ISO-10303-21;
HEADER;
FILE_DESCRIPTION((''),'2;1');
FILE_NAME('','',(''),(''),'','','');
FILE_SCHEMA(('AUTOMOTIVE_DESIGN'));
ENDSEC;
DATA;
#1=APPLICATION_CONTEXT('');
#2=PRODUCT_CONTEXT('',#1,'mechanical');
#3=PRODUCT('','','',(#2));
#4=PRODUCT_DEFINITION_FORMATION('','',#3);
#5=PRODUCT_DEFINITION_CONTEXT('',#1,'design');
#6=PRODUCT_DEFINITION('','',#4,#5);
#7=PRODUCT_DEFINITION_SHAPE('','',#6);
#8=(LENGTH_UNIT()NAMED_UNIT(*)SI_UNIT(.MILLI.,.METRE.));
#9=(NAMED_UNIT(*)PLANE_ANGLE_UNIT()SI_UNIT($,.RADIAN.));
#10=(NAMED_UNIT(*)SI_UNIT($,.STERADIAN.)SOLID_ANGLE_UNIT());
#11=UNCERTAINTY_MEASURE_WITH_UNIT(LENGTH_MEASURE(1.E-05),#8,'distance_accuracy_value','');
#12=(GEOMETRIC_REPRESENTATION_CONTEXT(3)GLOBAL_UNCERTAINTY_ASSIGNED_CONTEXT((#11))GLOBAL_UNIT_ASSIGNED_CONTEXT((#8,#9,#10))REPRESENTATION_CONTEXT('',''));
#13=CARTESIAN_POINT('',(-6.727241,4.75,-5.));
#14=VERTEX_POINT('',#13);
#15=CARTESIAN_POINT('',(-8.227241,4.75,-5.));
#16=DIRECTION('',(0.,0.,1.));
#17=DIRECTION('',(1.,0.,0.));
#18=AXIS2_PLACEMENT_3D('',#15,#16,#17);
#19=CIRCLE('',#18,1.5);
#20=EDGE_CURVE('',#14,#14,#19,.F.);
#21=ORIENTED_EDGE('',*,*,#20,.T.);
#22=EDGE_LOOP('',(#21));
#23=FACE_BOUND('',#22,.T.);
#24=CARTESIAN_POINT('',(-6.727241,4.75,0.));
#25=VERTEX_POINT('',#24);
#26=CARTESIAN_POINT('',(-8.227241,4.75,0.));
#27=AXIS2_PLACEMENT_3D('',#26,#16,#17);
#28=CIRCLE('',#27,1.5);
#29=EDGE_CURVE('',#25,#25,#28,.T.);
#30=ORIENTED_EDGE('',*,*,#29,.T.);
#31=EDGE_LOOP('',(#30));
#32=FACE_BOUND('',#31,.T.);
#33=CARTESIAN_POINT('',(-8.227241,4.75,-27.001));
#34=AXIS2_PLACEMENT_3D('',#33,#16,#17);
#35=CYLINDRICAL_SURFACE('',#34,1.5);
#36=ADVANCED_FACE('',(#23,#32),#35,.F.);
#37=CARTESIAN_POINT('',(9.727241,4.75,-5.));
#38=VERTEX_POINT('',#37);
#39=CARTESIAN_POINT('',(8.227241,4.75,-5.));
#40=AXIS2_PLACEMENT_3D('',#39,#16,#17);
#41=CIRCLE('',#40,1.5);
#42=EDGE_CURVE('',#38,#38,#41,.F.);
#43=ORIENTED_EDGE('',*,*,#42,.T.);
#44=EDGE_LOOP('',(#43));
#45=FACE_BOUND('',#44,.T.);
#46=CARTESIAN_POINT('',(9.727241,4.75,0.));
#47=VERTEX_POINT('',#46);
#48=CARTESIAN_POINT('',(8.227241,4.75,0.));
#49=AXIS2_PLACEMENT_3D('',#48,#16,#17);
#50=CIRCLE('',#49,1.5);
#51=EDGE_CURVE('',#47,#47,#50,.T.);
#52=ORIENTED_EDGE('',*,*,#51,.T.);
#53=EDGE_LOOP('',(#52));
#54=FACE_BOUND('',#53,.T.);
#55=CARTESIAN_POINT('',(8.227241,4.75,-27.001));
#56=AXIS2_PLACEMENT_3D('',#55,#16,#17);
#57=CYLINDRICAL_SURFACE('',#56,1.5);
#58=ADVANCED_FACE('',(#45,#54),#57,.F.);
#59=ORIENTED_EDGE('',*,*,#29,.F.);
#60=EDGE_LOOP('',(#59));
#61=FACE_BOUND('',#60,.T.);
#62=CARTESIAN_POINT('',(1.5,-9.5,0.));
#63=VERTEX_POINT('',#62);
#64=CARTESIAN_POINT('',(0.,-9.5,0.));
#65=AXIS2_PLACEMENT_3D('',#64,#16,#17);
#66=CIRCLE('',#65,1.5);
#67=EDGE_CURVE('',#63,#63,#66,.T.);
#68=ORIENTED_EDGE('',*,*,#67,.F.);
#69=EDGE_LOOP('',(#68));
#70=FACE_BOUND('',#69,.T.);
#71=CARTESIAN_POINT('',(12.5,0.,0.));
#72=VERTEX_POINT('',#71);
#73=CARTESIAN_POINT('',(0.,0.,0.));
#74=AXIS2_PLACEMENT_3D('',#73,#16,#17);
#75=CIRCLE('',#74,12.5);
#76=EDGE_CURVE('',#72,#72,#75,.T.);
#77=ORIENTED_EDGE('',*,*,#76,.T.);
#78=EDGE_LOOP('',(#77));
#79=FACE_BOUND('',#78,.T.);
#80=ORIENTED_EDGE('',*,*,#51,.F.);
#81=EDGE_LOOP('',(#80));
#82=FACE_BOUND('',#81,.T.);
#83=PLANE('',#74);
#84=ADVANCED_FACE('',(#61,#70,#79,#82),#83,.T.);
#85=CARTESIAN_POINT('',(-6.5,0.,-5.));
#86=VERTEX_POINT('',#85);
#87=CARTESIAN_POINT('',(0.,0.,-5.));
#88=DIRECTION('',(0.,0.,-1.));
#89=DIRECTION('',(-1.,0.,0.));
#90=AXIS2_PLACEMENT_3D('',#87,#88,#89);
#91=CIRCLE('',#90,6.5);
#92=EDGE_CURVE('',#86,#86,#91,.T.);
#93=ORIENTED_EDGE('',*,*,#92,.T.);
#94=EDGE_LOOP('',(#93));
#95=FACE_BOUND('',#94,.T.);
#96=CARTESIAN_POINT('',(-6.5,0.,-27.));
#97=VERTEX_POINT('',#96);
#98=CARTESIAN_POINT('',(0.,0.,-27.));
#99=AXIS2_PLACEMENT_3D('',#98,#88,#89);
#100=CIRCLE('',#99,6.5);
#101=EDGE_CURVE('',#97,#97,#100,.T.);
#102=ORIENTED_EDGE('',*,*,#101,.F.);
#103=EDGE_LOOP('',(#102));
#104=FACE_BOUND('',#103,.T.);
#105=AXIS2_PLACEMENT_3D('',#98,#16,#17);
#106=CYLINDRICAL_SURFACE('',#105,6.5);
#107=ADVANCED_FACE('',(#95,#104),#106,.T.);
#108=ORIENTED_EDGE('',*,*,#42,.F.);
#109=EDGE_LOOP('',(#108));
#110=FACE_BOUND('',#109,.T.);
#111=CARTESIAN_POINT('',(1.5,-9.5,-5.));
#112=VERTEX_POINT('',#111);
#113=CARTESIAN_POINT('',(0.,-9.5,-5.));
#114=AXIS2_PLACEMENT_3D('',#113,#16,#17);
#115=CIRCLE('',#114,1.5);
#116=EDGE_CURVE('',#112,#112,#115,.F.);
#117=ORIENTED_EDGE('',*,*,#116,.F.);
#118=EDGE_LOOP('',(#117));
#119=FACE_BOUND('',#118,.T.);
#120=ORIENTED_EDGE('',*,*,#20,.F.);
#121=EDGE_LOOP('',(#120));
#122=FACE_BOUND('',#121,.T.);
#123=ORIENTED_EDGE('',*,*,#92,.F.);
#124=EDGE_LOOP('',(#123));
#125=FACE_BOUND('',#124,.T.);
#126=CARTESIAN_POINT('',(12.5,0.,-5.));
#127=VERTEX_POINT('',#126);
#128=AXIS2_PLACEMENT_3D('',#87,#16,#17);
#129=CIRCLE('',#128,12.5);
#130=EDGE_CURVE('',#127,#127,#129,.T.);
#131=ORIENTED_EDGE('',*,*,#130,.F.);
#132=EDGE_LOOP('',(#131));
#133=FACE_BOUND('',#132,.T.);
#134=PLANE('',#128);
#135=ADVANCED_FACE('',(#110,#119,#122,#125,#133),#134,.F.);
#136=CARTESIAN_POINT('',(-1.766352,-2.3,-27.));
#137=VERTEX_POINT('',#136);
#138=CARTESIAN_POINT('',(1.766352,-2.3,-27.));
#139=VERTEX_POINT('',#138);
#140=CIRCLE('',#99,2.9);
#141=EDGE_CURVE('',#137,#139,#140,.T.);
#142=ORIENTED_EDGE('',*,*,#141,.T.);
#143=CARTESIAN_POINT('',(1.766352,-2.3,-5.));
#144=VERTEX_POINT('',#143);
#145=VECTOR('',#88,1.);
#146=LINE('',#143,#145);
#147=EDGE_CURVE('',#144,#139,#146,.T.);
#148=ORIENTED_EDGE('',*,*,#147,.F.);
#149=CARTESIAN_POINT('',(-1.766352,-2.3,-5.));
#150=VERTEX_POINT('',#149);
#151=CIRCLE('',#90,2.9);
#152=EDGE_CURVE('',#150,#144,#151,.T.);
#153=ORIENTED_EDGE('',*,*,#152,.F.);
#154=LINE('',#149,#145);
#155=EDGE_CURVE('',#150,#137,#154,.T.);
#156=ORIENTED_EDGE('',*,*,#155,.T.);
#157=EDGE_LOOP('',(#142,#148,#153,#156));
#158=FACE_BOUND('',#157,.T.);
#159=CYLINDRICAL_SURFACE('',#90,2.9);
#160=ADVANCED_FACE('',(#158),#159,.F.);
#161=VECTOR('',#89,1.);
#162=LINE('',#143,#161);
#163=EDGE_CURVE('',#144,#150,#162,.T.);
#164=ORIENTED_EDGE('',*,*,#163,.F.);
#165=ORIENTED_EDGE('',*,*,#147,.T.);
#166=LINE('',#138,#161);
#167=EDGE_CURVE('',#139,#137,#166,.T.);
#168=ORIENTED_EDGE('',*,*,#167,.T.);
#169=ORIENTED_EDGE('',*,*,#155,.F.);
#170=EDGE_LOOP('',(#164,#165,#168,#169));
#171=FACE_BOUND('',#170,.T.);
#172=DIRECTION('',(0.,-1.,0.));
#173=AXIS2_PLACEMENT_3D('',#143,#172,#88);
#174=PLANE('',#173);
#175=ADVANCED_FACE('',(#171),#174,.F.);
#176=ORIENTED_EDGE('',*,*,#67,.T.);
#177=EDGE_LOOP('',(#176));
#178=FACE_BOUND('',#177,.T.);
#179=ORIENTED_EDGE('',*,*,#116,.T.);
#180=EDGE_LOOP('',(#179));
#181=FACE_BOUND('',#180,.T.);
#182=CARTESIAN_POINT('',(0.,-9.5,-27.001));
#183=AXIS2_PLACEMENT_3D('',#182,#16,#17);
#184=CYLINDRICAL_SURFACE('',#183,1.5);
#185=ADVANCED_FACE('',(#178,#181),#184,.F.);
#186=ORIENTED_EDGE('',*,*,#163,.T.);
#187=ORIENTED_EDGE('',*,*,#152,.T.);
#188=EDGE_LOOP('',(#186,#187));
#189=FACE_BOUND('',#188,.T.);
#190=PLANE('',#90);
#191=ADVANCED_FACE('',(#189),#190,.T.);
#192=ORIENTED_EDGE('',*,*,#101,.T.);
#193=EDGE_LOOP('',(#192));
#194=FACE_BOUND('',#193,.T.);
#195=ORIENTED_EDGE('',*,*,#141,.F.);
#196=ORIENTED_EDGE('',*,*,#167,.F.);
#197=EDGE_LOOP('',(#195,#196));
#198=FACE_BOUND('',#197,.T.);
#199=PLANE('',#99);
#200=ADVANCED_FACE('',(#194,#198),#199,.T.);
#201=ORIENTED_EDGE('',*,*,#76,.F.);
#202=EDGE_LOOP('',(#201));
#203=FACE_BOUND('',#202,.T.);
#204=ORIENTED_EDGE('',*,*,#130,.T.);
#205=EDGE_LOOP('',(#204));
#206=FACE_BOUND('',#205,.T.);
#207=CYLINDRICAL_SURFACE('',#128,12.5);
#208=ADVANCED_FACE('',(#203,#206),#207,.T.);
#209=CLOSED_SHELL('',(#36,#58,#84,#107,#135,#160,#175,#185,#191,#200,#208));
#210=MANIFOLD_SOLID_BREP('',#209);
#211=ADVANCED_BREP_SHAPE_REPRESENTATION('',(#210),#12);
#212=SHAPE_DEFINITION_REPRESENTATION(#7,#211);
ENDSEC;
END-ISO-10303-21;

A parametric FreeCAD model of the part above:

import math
import FreeCAD as App
import Part
import Sketcher
from FreeCAD import Vector

doc = App.newDocument("Part")
body = doc.addObject("PartDesign::Body", "Body")

sketch1 = doc.addObject("Sketcher::SketchObject", "Sketch")
body.addObject(sketch1)
sketch1.AttachmentSupport = (doc.XY_Plane, [""])
sketch1.MapMode = "FlatFace"
sketch1.addGeometry(Part.Circle(Vector(0, 0, 0), Vector(0, 0, 1), 12), False)
sketch1.addConstraint([
    Sketcher.Constraint("Coincident", 0, 3, -1, 1),
    Sketcher.Constraint("Diameter", 0, 25.0),
])
pad1 = doc.addObject("PartDesign::Pad", "Pad")
body.addObject(pad1)
pad1.Profile = sketch1
pad1.Length = 5
pad1.Reversed = True

sketch2 = doc.addObject("Sketcher::SketchObject", "Sketch001")
body.addObject(sketch2)
sketch2.AttachmentSupport = (doc.XY_Plane, [""])
sketch2.MapMode = "FlatFace"
sketch2.AttachmentOffset = App.Placement(Vector(0, 0, -5), App.Rotation())
sketch2.addGeometry(Part.Circle(Vector(0, 0, 0), Vector(0, 0, 1), 6), False)
sketch2.addConstraint([
    Sketcher.Constraint("Coincident", 0, 3, -1, 1),
    Sketcher.Constraint("Diameter", 0, 13.0),
])
pad2 = doc.addObject("PartDesign::Pad", "Pad001")
body.addObject(pad2)
pad2.Profile = sketch2
pad2.Length = 22
pad2.Reversed = True

sketch3 = doc.addObject("Sketcher::SketchObject", "Sketch002")
body.addObject(sketch3)
sketch3.AttachmentSupport = (doc.XY_Plane, [""])
sketch3.MapMode = "FlatFace"
sketch3.AttachmentOffset = App.Placement(Vector(0, 0, -27), App.Rotation())
sketch3.addGeometry([
    Part.LineSegment(Vector(1.8, -2.3, 0), Vector(-1.8, -2.3, 0)),
    Part.ArcOfCircle(Part.Circle(Vector(0, 0, 0), Vector(0, 0, 1), 2.9), math.radians(-52), math.radians(232)),
], False)
sketch3.addConstraint([
    Sketcher.Constraint("Coincident", 0, 1, 1, 1),
    Sketcher.Constraint("Coincident", 1, 2, 0, 2),
    Sketcher.Constraint("Horizontal", 0),
    Sketcher.Constraint("Coincident", 1, 3, -1, 1),
    Sketcher.Constraint("Radius", 1, 2.9),
    Sketcher.Constraint("DistanceY", 0, 1, -1, 1, 2.3),
])
pocket1 = doc.addObject("PartDesign::Pocket", "Pocket")
body.addObject(pocket1)
pocket1.Profile = sketch3
pocket1.Length = 22
pocket1.Reversed = True

sketch4 = doc.addObject("Sketcher::SketchObject", "Sketch003")
body.addObject(sketch4)
sketch4.AttachmentSupport = (doc.XY_Plane, [""])
sketch4.MapMode = "FlatFace"
sketch4.addGeometry(Part.Circle(Vector(-8.2, 4.8, 0), Vector(0, 0, 1), 1.5), False)
sketch4.addConstraint([
    Sketcher.Constraint("Diameter", 0, 3.0),
    Sketcher.Constraint("DistanceY", -1, 1, 0, 3, 4.75),
    Sketcher.Constraint("DistanceX", 0, 3, -1, 1, 8.227241),
])
pocket2 = doc.addObject("PartDesign::Pocket", "Pocket001")
body.addObject(pocket2)
pocket2.Profile = sketch4
pocket2.Type = "UpToFirst"

sketch5 = doc.addObject("Sketcher::SketchObject", "Sketch004")
body.addObject(sketch5)
sketch5.AttachmentSupport = (doc.XY_Plane, [""])
sketch5.MapMode = "FlatFace"
sketch5.addGeometry(Part.Circle(Vector(8.2, 4.8, 0), Vector(0, 0, 1), 1.5), False)
sketch5.addConstraint([
    Sketcher.Constraint("Diameter", 0, 3.0),
    Sketcher.Constraint("DistanceY", -1, 1, 0, 3, 4.75),
    Sketcher.Constraint("DistanceX", -1, 1, 0, 3, 8.227241),
])
pocket3 = doc.addObject("PartDesign::Pocket", "Pocket002")
body.addObject(pocket3)
pocket3.Profile = sketch5
pocket3.Type = "UpToFirst"

sketch6 = doc.addObject("Sketcher::SketchObject", "Sketch005")
body.addObject(sketch6)
sketch6.AttachmentSupport = (doc.XY_Plane, [""])
sketch6.MapMode = "FlatFace"
sketch6.addGeometry(Part.Circle(Vector(0, -9.5, 0), Vector(0, 0, 1), 1.5), False)
sketch6.addConstraint([
    Sketcher.Constraint("PointOnObject", 0, 3, -2),
    Sketcher.Constraint("Diameter", 0, 3.0),
    Sketcher.Constraint("DistanceY", 0, 3, -1, 1, 9.5),
])
pocket4 = doc.addObject("PartDesign::Pocket", "Pocket003")
body.addObject(pocket4)
pocket4.Profile = sketch6
pocket4.Type = "UpToFirst"

doc.recompute()
